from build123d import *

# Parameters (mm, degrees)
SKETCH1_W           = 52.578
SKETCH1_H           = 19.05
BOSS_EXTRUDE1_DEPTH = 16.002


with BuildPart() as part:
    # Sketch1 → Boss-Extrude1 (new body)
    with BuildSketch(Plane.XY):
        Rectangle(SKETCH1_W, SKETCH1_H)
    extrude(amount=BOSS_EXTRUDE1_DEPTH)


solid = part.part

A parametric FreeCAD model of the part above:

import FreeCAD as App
import Part
import Sketcher

V = App.Vector
Q = App.Units.Quantity

doc = App.newDocument("Part")
body = doc.addObject("PartDesign::Body", "Body")

sketch1 = body.newObject("Sketcher::SketchObject", "Sketch")
sketch1.AttachmentSupport = (doc.getObject("XY_Plane"), [""])
sketch1.MapMode = "FlatFace"
sketch1.addGeometry(Part.LineSegment(V(-26.289, 9.525, 0), V(-26.289, -9.525, 0)), False)
sketch1.addGeometry(Part.LineSegment(V(-26.289, -9.525, 0), V(26.289, -9.525, 0)), False)
sketch1.addGeometry(Part.LineSegment(V(26.289, -9.525, 0), V(26.289, 9.525, 0)), False)
sketch1.addGeometry(Part.LineSegment(V(26.289, 9.525, 0), V(-26.289, 9.525, 0)), False)
sketch1.addConstraint(Sketcher.Constraint("Coincident", 0, 2, 1, 1))
sketch1.addConstraint(Sketcher.Constraint("Coincident", 1, 2, 2, 1))
sketch1.addConstraint(Sketcher.Constraint("Coincident", 2, 2, 3, 1))
sketch1.addConstraint(Sketcher.Constraint("Coincident", 3, 2, 0, 1))
sketch1.addConstraint(Sketcher.Constraint("Vertical", 0))
sketch1.addConstraint(Sketcher.Constraint("Horizontal", 1))
sketch1.addConstraint(Sketcher.Constraint("Vertical", 2))
sketch1.addConstraint(Sketcher.Constraint("Horizontal", 3))
sketch1.addConstraint(Sketcher.Constraint("Symmetric", 0, 2, 2, 2, -1, 1))
sketch1.addConstraint(Sketcher.Constraint("DistanceX", 1, 1, 1, 2, Q("2.07 in")))
sketch1.addConstraint(Sketcher.Constraint("DistanceY", 0, 2, 0, 1, Q("0.75 in")))
pad1 = body.newObject("PartDesign::Pad", "Pad")
pad1.Profile = sketch1
pad1.Length = Q("0.63 in")

doc.recompute()
